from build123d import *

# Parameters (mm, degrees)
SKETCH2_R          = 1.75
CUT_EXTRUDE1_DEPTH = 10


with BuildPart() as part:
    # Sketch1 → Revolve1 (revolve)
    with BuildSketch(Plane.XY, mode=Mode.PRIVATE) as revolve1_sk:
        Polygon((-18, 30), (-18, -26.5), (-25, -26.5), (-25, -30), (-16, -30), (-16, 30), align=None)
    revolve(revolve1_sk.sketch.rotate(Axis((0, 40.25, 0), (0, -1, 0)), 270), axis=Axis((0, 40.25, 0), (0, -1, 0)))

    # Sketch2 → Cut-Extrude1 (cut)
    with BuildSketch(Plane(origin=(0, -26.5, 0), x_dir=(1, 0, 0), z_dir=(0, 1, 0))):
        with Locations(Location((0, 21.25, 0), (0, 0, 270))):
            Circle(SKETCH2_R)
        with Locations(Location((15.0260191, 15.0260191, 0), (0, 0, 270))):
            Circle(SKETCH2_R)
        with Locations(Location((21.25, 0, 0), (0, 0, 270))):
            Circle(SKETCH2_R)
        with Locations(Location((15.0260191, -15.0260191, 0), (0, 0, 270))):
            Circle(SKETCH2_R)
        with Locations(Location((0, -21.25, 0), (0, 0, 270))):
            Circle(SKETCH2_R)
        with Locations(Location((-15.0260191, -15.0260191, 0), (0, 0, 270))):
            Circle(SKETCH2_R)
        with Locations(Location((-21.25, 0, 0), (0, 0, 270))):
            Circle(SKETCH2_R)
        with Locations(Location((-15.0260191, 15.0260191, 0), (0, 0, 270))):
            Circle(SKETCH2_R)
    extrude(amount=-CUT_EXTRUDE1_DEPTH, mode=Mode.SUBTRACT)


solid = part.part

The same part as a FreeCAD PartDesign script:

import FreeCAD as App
import Part
import Sketcher

V = App.Vector
Q = App.Units.Quantity

doc = App.newDocument("Part")
body = doc.addObject("PartDesign::Body", "Body")

sketch1 = body.newObject("Sketcher::SketchObject", "Sketch")
sketch1.AttachmentSupport = (doc.getObject("XY_Plane"), [""])
sketch1.MapMode = "FlatFace"
sketch1.addGeometry(Part.LineSegment(V(-18, 30, 0), V(-18, -26.5, 0)), False)
sketch1.addGeometry(Part.LineSegment(V(-18, -26.5, 0), V(-25, -26.5, 0)), False)
sketch1.addGeometry(Part.LineSegment(V(-25, -26.5, 0), V(-25, -30, 0)), False)
sketch1.addGeometry(Part.LineSegment(V(-25, -30, 0), V(-16, -30, 0)), False)
sketch1.addGeometry(Part.LineSegment(V(-16, -30, 0), V(-16, 30, 0)), False)
sketch1.addGeometry(Part.LineSegment(V(-16, 30, 0), V(-18, 30, 0)), False)
sketch1.addConstraint(Sketcher.Constraint("Coincident", 0, 2, 1, 1))
sketch1.addConstraint(Sketcher.Constraint("Coincident", 1, 2, 2, 1))
sketch1.addConstraint(Sketcher.Constraint("Coincident", 2, 2, 3, 1))
sketch1.addConstraint(Sketcher.Constraint("Coincident", 3, 2, 4, 1))
sketch1.addConstraint(Sketcher.Constraint("Coincident", 4, 2, 5, 1))
sketch1.addConstraint(Sketcher.Constraint("Coincident", 5, 2, 0, 1))
sketch1.addConstraint(Sketcher.Constraint("Vertical", 0))
sketch1.addConstraint(Sketcher.Constraint("Horizontal", 1))
sketch1.addConstraint(Sketcher.Constraint("Vertical", 2))
sketch1.addConstraint(Sketcher.Constraint("Horizontal", 3))
sketch1.addConstraint(Sketcher.Constraint("Vertical", 4))
sketch1.addConstraint(Sketcher.Constraint("Horizontal", 5))
sketch1.addConstraint(Sketcher.Constraint("DistanceX", 1, 2, 1, 1, Q("7 mm")))
sketch1.addConstraint(Sketcher.Constraint("DistanceX", 3, 1, 3, 2, Q("9 mm")))
sketch1.addConstraint(Sketcher.Constraint("DistanceY", 4, 1, 4, 2, Q("60 mm")))
sketch1.addConstraint(Sketcher.Constraint("DistanceY", 0, 2, 0, 1, Q("56.5 mm")))
sketch1.addConstraint(Sketcher.Constraint("DistanceX", 0, 2, -1, 1, Q("18 mm")))
sketch1.addConstraint(Sketcher.Constraint("DistanceY", 2, 2, -1, 1, Q("30 mm")))
revolution = body.newObject("PartDesign::Revolution", "Revolution")
revolution.Profile = sketch1
revolution.ReferenceAxis = (sketch1, ["V_Axis"])
revolution.Angle = 360

sketch2 = body.newObject("Sketcher::SketchObject", "Sketch001")
sketch2.AttachmentSupport = (doc.getObject("XZ_Plane"), [""])
sketch2.MapMode = "FlatFace"
sketch2.AttachmentOffset = App.Placement(V(0, 0, 26.5), App.Rotation())
sketch2.addGeometry(Part.Circle(V(0, -21.2, 0), V(0, 0, 1), 1.8), False)
sketch2.addGeometry(Part.Circle(V(15, -15, 0), V(0, 0, 1), 1.8), False)
sketch2.addGeometry(Part.Circle(V(21.2, 0, 0), V(0, 0, 1), 1.8), False)
sketch2.addGeometry(Part.Circle(V(15, 15, 0), V(0, 0, 1), 1.8), False)
sketch2.addGeometry(Part.Circle(V(0, 21.2, 0), V(0, 0, 1), 1.8), False)
sketch2.addGeometry(Part.Circle(V(-15, 15, 0), V(0, 0, 1), 1.8), False)
sketch2.addGeometry(Part.Circle(V(-21.2, 0, 0), V(0, 0, 1), 1.8), False)
sketch2.addGeometry(Part.Circle(V(-15, -15, 0), V(0, 0, 1), 1.8), False)
sketch2.addConstraint(Sketcher.Constraint("Equal", 0, 1))
sketch2.addConstraint(Sketcher.Constraint("Equal", 1, 2))
sketch2.addConstraint(Sketcher.Constraint("Equal", 2, 3))
sketch2.addConstraint(Sketcher.Constraint("Equal", 3, 4))
sketch2.addConstraint(Sketcher.Constraint("Equal", 4, 5))
sketch2.addConstraint(Sketcher.Constraint("Equal", 5, 6))
sketch2.addConstraint(Sketcher.Constraint("Equal", 6, 7))
sketch2.addConstraint(Sketcher.Constraint("Symmetric", 0, 3, 4, 3, -1, 1))
sketch2.addConstraint(Sketcher.Constraint("Symmetric", 1, 3, 5, 3, -1, 1))
sketch2.addConstraint(Sketcher.Constraint("Symmetric", 2, 3, 6, 3, -1, 1))
sketch2.addConstraint(Sketcher.Constraint("Symmetric", 3, 3, 7, 3, -1, 1))
sketch2.addConstraint(Sketcher.Constraint("Symmetric", 3, 3, 5, 3, -2))
sketch2.addConstraint(Sketcher.Constraint("PointOnObject", 0, 3, -2))
sketch2.addConstraint(Sketcher.Constraint("PointOnObject", 2, 3, -1))
sketch2.addConstraint(Sketcher.Constraint("Diameter", 0, Q("3.5 mm")))
sketch2.addConstraint(Sketcher.Constraint("DistanceY", 0, 3, 4, 3, Q("42.5 mm")))
sketch2.addConstraint(Sketcher.Constraint("DistanceX", -1, 1, 2, 3, Q("21.25 mm")))
sketch2.addConstraint(Sketcher.Constraint("DistanceX", -1, 1, 1, 3, Q("15.026019 mm")))
sketch2.addConstraint(Sketcher.Constraint("DistanceY", 1, 3, -1, 1, Q("15.026019 mm")))
pocket1 = body.newObject("PartDesign::Pocket", "Pocket")
pocket1.Profile = sketch2
pocket1.Length = 10
pocket1.Reversed = True

doc.recompute()
